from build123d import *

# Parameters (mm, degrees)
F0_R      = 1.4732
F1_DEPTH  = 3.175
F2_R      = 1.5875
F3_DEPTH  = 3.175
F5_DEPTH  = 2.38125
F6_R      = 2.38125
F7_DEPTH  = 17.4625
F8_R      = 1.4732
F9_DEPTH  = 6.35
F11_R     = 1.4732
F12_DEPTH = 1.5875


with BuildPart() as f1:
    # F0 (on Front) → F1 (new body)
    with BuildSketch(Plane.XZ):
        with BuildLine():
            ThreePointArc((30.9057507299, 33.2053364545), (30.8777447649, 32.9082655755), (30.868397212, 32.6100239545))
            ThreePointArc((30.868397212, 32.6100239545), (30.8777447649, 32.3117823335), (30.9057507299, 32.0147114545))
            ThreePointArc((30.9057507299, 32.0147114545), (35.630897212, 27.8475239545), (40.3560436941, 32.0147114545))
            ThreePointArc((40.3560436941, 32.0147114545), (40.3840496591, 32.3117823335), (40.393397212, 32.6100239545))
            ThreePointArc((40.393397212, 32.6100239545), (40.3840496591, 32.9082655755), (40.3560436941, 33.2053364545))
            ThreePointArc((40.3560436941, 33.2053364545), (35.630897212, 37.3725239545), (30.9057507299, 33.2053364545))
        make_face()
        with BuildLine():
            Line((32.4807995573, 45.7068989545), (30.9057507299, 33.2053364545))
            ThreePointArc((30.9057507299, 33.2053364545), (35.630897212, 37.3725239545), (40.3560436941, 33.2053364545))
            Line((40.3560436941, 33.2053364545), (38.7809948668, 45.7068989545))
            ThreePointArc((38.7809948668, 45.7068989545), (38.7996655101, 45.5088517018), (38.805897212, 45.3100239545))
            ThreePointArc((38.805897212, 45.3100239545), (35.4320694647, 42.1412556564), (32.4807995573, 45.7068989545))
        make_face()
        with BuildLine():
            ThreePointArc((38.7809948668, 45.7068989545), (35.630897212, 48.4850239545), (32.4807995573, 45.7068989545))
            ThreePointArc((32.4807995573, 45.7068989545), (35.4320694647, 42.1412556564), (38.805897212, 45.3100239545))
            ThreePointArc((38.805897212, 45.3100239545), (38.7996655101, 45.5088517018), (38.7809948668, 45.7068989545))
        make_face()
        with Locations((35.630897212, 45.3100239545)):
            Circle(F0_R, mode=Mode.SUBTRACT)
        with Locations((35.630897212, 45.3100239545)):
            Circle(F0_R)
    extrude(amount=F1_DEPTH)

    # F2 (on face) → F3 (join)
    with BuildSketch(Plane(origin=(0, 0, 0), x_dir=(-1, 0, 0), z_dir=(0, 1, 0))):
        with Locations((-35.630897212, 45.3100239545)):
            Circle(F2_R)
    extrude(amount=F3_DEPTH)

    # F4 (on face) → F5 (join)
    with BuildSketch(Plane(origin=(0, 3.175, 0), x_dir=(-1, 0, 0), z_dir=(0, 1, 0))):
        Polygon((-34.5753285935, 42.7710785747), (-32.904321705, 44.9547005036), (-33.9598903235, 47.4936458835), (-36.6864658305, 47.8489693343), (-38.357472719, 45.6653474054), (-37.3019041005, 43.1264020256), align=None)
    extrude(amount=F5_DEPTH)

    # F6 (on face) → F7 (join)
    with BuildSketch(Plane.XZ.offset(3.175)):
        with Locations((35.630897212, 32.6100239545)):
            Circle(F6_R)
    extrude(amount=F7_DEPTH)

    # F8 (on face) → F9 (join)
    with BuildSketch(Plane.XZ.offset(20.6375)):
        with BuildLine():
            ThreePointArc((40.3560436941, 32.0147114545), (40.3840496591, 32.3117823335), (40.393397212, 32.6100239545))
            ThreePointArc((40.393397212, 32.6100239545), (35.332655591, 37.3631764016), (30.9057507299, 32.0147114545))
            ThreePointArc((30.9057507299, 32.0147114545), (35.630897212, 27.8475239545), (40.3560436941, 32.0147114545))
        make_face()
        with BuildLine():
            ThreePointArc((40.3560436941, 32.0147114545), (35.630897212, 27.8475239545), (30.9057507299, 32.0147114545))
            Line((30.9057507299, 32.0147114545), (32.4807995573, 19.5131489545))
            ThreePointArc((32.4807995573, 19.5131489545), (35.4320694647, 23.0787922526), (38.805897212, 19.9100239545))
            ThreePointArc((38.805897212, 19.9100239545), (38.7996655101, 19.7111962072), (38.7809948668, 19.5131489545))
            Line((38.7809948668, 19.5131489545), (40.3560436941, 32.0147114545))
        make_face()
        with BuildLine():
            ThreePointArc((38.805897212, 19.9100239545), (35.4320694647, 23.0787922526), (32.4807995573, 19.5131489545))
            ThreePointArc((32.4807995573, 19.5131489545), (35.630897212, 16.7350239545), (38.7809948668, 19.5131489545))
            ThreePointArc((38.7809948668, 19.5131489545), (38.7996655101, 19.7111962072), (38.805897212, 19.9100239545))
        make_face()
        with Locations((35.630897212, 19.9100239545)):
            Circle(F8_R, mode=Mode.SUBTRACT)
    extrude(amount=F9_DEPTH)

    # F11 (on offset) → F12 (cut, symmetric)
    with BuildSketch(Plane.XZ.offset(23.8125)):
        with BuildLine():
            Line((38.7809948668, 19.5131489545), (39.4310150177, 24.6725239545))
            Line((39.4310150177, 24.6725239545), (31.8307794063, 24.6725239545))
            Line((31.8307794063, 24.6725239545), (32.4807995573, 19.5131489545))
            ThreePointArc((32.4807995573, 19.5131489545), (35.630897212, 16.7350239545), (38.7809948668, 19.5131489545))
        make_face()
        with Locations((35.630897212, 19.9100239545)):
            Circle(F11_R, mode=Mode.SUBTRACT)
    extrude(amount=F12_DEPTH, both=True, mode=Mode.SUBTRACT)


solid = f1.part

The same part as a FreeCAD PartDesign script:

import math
import FreeCAD as App
import Part
import Sketcher
from FreeCAD import Vector
Q = App.Units.Quantity


def add_polygon(sketch, points):
    """Adds a closed chain of lines whose ends are joined by coincident constraints."""
    first, n = sketch.GeometryCount, len(points)
    for a, b in zip(points, points[1:] + points[:1]):
        sketch.addGeometry(Part.LineSegment(App.Vector(*a, 0), App.Vector(*b, 0)), False)
    for i in range(n):
        sketch.addConstraint(Sketcher.Constraint("Coincident", first + i, 2, first + (i + 1) % n, 1))

doc = App.newDocument("Part")
params = doc.addObject("Spreadsheet::Sheet", "Params")
for row, (alias, value) in enumerate([
    ("sketch1_radius", "0.1875 in"),
    ("sketch1_radius2", "0.125 in"),
    ("pad1_length", "0.125 in"),
    ("sketch2_diameter", "0.125 in"),
    ("pad2_length", "0.125 in"),
    ("pad3_length", "0.09375 in"),
    ("sketch4_diameter", "0.1875 in"),
    ("pad4_length", "0.6875 in"),
    ("sketch5_diameter", "0.116 in"),
    ("sketch5_radius", "0.1875 in"),
    ("sketch5_radius2", "0.125 in"),
    ("pad5_length", "0.25 in"),
    ("sketch6_diameter", "0.116 in"),
    ("sketch6_radius", "0.125 in"),
    ("pocket1_length", "0.125 in"),
], start=1):
    params.set(f"A{row}", alias)
    params.set(f"B{row}", "=" + value)
    params.setAlias(f"B{row}", alias)

body = doc.addObject("PartDesign::Body", "Body")

# Sketch on XZ plane
sketch1 = doc.addObject("Sketcher::SketchObject", "Sketch")
body.addObject(sketch1)
sketch1.AttachmentSupport = (doc.XZ_Plane, [""])
sketch1.MapMode = "FlatFace"
sketch1.addGeometry([
    Part.ArcOfCircle(Part.Circle(Vector(35.6, 32.6, 0), Vector(0, 0, 1), 4.8), math.radians(172.82), math.radians(180)),  # 0
    Part.ArcOfCircle(Part.Circle(Vector(35.6, 32.6, 0), Vector(0, 0, 1), 4.8), math.radians(180), math.radians(187.18)),  # 1
    Part.ArcOfCircle(Part.Circle(Vector(35.6, 32.6, 0), Vector(0, 0, 1), 4.8), math.radians(-173), math.radians(-7)),  # 2
    Part.ArcOfCircle(Part.Circle(Vector(35.6, 32.6, 0), Vector(0, 0, 1), 4.8), math.radians(-7.18), math.radians(0)),  # 3
    Part.ArcOfCircle(Part.Circle(Vector(35.6, 32.6, 0), Vector(0, 0, 1), 4.8), math.radians(0), math.radians(7.18)),  # 4
    Part.LineSegment(Vector(40.4, 33.2, 0), Vector(38.8, 45.7, 0)),  # 5
    Part.ArcOfCircle(Part.Circle(Vector(35.6, 45.3, 0), Vector(0, 0, 1), 3.2), math.radians(7), math.radians(173)),  # 6
    Part.LineSegment(Vector(32.5, 45.7, 0), Vector(30.9, 33.2, 0)),  # 7
], False)
sketch1.addConstraint([
    Sketcher.Constraint("Tangent", 0, 2, 1, 1),
    Sketcher.Constraint("Tangent", 1, 2, 2, 1),
    Sketcher.Constraint("Tangent", 2, 2, 3, 1),
    Sketcher.Constraint("Tangent", 3, 2, 4, 1),
    Sketcher.Constraint("Tangent", 4, 2, 5, 1),
    Sketcher.Constraint("Tangent", 5, 2, 6, 1),
    Sketcher.Constraint("Tangent", 6, 2, 7, 1),
    Sketcher.Constraint("Tangent", 7, 2, 0, 1),
    Sketcher.Constraint("Coincident", 2, 3, 0, 3),
    Sketcher.Constraint("Coincident", 4, 3, 0, 3),
    Sketcher.Constraint("Horizontal", 4, 3, 0, 2),
    Sketcher.Constraint("Horizontal", 1, 2, 2, 2),
    Sketcher.Constraint("Horizontal", 0, 2, 3, 2),
    Sketcher.Constraint("Horizontal", 5, 2, 6, 2),
    Sketcher.Constraint("Vertical", 2, 2, 4, 2),
    Sketcher.Constraint("Radius", 0, Q("0.1875 in")),
    Sketcher.Constraint("Radius", 6, Q("0.125 in")),
    Sketcher.Constraint("DistanceY", 1, 3, 6, 3, Q("0.5 in")),
    Sketcher.Constraint("DistanceY", -1, 1, 5, 2, 45.706899),
    Sketcher.Constraint("DistanceX", -1, 1, 6, 2, 32.4808),
])
sketch1.setExpression("Constraints[15]", "Params.sketch1_radius")
sketch1.setExpression("Constraints[16]", "Params.sketch1_radius2")
pad1 = doc.addObject("PartDesign::Pad", "Pad")
body.addObject(pad1)
pad1.Profile = sketch1
pad1.setExpression("Length", "Params.pad1_length")

# Sketch on XZ plane
sketch2 = doc.addObject("Sketcher::SketchObject", "Sketch001")
body.addObject(sketch2)
sketch2.AttachmentSupport = (doc.XZ_Plane, [""])
sketch2.MapMode = "FlatFace"
sketch2.addGeometry(Part.Circle(Vector(35.6, 45.3, 0), Vector(0, 0, 1), 1.6), False)
sketch2.addConstraint([
    Sketcher.Constraint("Diameter", 0, Q("0.125 in")),
    Sketcher.Constraint("DistanceX", -1, 1, 0, 3, 35.630897),
    Sketcher.Constraint("DistanceY", -1, 1, 0, 3, 45.310024),
])
sketch2.setExpression("Constraints[0]", "Params.sketch2_diameter")
pad2 = doc.addObject("PartDesign::Pad", "Pad001")
body.addObject(pad2)
pad2.Profile = sketch2
pad2.setExpression("Length", "Params.pad2_length")
pad2.Reversed = True

# Sketch on XZ plane
sketch3 = doc.addObject("Sketcher::SketchObject", "Sketch002")
body.addObject(sketch3)
sketch3.AttachmentSupport = (doc.XZ_Plane, [""])
sketch3.MapMode = "FlatFace"
sketch3.AttachmentOffset = App.Placement(Vector(0, 0, -0.125 * 25.4), App.Rotation())
add_polygon(sketch3, [(34.6, 42.8), (32.9, 45), (34, 47.5), (36.7, 47.8), (38.4, 45.7), (37.3, 43.1)])  # lines 0-5
sketch3.addConstraint([
    Sketcher.Constraint("Parallel", 0, 3),
    Sketcher.Constraint("Parallel", 1, 4),
    Sketcher.Constraint("Parallel", 2, 5),
    Sketcher.Constraint("Equal", 0, 1),
    Sketcher.Constraint("Equal", 1, 2),
    Sketcher.Constraint("Equal", 2, 3),
    Sketcher.Constraint("DistanceY", -1, 1, 0, 2, 44.954701),
    Sketcher.Constraint("DistanceY", 3, 2, 1, 2, 1.828298),
    Sketcher.Constraint("Distance", 0, 2.749631),
    Sketcher.Constraint("DistanceX", -1, 1, 0, 2, 32.904322),
    Sketcher.Constraint("DistanceX", -1, 1, 1, 2, 33.95989),
    Sketcher.Constraint("DistanceY", -1, 1, 2, 2, 47.848969),
])
pad3 = doc.addObject("PartDesign::Pad", "Pad002")
body.addObject(pad3)
pad3.Profile = sketch3
pad3.setExpression("Length", "Params.pad3_length")
pad3.Reversed = True

# Sketch on XZ plane
sketch4 = doc.addObject("Sketcher::SketchObject", "Sketch003")
body.addObject(sketch4)
sketch4.AttachmentSupport = (doc.XZ_Plane, [""])
sketch4.MapMode = "FlatFace"
sketch4.AttachmentOffset = App.Placement(Vector(0, 0, 0.125 * 25.4), App.Rotation())
sketch4.addGeometry(Part.Circle(Vector(35.6, 32.6, 0), Vector(0, 0, 1), 2.4), False)
sketch4.addConstraint([
    Sketcher.Constraint("Diameter", 0, Q("0.1875 in")),
    Sketcher.Constraint("DistanceX", -1, 1, 0, 3, 35.630897),
    Sketcher.Constraint("DistanceY", -1, 1, 0, 3, 32.610024),
])
sketch4.setExpression("Constraints[0]", "Params.sketch4_diameter")
pad4 = doc.addObject("PartDesign::Pad", "Pad003")
body.addObject(pad4)
pad4.Profile = sketch4
pad4.setExpression("Length", "Params.pad4_length")

# Sketch on XZ plane
sketch5 = doc.addObject("Sketcher::SketchObject", "Sketch004")
body.addObject(sketch5)
sketch5.AttachmentSupport = (doc.XZ_Plane, [""])
sketch5.MapMode = "FlatFace"
sketch5.AttachmentOffset = App.Placement(Vector(0, 0, 0.8125 * 25.4), App.Rotation())
sketch5.addGeometry([
    Part.ArcOfCircle(Part.Circle(Vector(35.6, 32.6, 0), Vector(0, 0, 1), 4.8), math.radians(-7.18), math.radians(0)),  # 0
    Part.ArcOfCircle(Part.Circle(Vector(35.6, 32.6, 0), Vector(0, 0, 1), 4.8), math.radians(0), math.radians(187)),  # 1
    Part.LineSegment(Vector(30.9, 32, 0), Vector(32.5, 19.5, 0)),  # 2
    Part.ArcOfCircle(Part.Circle(Vector(35.6, 19.9, 0), Vector(0, 0, 1), 3.2), math.radians(-173), math.radians(-7)),  # 3
    Part.LineSegment(Vector(38.8, 19.5, 0), Vector(40.4, 32, 0)),  # 4
    Part.Circle(Vector(35.6, 19.9, 0), Vector(0, 0, 1), 1.5),  # 5
], False)
sketch5.addConstraint([
    Sketcher.Constraint("Tangent", 0, 2, 1, 1),
    Sketcher.Constraint("Tangent", 1, 2, 2, 1),
    Sketcher.Constraint("Tangent", 2, 2, 3, 1),
    Sketcher.Constraint("Tangent", 3, 2, 4, 1),
    Sketcher.Constraint("Tangent", 4, 2, 0, 1),
    Sketcher.Constraint("Coincident", 5, 3, 3, 3),
    Sketcher.Constraint("Equal", 0, 1),
    Sketcher.Constraint("Horizontal", 1, 3, 0, 2),
    Sketcher.Constraint("Horizontal", 2, 2, 3, 2),
    Sketcher.Constraint("Diameter", 5, Q("0.116 in")),
    Sketcher.Constraint("Radius", 0, Q("0.1875 in")),
    Sketcher.Constraint("Radius", 3, Q("0.125 in")),
    Sketcher.Constraint("DistanceY", 3, 3, 1, 3, Q("0.5 in")),
    Sketcher.Constraint("DistanceX", -1, 1, 2, 2, 32.4808),
    Sketcher.Constraint("DistanceY", -1, 1, 1, 2, 32.014711),
])
sketch5.setExpression("Constraints[9]", "Params.sketch5_diameter")
sketch5.setExpression("Constraints[10]", "Params.sketch5_radius")
sketch5.setExpression("Constraints[11]", "Params.sketch5_radius2")
pad5 = doc.addObject("PartDesign::Pad", "Pad004")
body.addObject(pad5)
pad5.Profile = sketch5
pad5.setExpression("Length", "Params.pad5_length")

# Sketch on XZ plane
sketch6 = doc.addObject("Sketcher::SketchObject", "Sketch005")
body.addObject(sketch6)
sketch6.AttachmentSupport = (doc.XZ_Plane, [""])
sketch6.MapMode = "FlatFace"
sketch6.AttachmentOffset = App.Placement(Vector(0, 0, 0.9375 * 25.4), App.Rotation())
sketch6.addGeometry([
    Part.LineSegment(Vector(38.8, 19.5, 0), Vector(39.4, 24.7, 0)),  # 0
    Part.LineSegment(Vector(39.4, 24.7, 0), Vector(31.8, 24.7, 0)),  # 1
    Part.LineSegment(Vector(31.8, 24.7, 0), Vector(32.5, 19.5, 0)),  # 2
    Part.ArcOfCircle(Part.Circle(Vector(35.6, 19.9, 0), Vector(0, 0, 1), 3.2), math.radians(-173), math.radians(-7)),  # 3
    Part.Circle(Vector(35.6, 19.9, 0), Vector(0, 0, 1), 1.5),  # 4
], False)
sketch6.addConstraint([
    Sketcher.Constraint("Coincident", 0, 2, 1, 1),
    Sketcher.Constraint("Coincident", 1, 2, 2, 1),
    Sketcher.Constraint("Tangent", 2, 2, 3, 1),
    Sketcher.Constraint("Tangent", 3, 2, 0, 1),
    Sketcher.Constraint("Horizontal", 1),
    Sketcher.Constraint("Coincident", 4, 3, 3, 3),
    Sketcher.Constraint("Horizontal", 2, 2, 3, 2),
    Sketcher.Constraint("Diameter", 4, Q("0.116 in")),
    Sketcher.Constraint("Radius", 3, Q("0.125 in")),
    Sketcher.Constraint("DistanceY", 3, 3, 0, 2, Q("0.1875 in")),
    Sketcher.Constraint("DistanceY", 2, 2, 3, 3, Q("0.015625 in")),
    Sketcher.Constraint("DistanceX", -1, 1, 2, 2, 32.4808),
    Sketcher.Constraint("DistanceY", -1, 1, 2, 2, 19.513149),
])
sketch6.setExpression("Constraints[7]", "Params.sketch6_diameter")
sketch6.setExpression("Constraints[8]", "Params.sketch6_radius")
pocket1 = doc.addObject("PartDesign::Pocket", "Pocket")
body.addObject(pocket1)
pocket1.Profile = sketch6
pocket1.setExpression("Length", "Params.pocket1_length")
pocket1.Midplane = True

doc.recompute()
